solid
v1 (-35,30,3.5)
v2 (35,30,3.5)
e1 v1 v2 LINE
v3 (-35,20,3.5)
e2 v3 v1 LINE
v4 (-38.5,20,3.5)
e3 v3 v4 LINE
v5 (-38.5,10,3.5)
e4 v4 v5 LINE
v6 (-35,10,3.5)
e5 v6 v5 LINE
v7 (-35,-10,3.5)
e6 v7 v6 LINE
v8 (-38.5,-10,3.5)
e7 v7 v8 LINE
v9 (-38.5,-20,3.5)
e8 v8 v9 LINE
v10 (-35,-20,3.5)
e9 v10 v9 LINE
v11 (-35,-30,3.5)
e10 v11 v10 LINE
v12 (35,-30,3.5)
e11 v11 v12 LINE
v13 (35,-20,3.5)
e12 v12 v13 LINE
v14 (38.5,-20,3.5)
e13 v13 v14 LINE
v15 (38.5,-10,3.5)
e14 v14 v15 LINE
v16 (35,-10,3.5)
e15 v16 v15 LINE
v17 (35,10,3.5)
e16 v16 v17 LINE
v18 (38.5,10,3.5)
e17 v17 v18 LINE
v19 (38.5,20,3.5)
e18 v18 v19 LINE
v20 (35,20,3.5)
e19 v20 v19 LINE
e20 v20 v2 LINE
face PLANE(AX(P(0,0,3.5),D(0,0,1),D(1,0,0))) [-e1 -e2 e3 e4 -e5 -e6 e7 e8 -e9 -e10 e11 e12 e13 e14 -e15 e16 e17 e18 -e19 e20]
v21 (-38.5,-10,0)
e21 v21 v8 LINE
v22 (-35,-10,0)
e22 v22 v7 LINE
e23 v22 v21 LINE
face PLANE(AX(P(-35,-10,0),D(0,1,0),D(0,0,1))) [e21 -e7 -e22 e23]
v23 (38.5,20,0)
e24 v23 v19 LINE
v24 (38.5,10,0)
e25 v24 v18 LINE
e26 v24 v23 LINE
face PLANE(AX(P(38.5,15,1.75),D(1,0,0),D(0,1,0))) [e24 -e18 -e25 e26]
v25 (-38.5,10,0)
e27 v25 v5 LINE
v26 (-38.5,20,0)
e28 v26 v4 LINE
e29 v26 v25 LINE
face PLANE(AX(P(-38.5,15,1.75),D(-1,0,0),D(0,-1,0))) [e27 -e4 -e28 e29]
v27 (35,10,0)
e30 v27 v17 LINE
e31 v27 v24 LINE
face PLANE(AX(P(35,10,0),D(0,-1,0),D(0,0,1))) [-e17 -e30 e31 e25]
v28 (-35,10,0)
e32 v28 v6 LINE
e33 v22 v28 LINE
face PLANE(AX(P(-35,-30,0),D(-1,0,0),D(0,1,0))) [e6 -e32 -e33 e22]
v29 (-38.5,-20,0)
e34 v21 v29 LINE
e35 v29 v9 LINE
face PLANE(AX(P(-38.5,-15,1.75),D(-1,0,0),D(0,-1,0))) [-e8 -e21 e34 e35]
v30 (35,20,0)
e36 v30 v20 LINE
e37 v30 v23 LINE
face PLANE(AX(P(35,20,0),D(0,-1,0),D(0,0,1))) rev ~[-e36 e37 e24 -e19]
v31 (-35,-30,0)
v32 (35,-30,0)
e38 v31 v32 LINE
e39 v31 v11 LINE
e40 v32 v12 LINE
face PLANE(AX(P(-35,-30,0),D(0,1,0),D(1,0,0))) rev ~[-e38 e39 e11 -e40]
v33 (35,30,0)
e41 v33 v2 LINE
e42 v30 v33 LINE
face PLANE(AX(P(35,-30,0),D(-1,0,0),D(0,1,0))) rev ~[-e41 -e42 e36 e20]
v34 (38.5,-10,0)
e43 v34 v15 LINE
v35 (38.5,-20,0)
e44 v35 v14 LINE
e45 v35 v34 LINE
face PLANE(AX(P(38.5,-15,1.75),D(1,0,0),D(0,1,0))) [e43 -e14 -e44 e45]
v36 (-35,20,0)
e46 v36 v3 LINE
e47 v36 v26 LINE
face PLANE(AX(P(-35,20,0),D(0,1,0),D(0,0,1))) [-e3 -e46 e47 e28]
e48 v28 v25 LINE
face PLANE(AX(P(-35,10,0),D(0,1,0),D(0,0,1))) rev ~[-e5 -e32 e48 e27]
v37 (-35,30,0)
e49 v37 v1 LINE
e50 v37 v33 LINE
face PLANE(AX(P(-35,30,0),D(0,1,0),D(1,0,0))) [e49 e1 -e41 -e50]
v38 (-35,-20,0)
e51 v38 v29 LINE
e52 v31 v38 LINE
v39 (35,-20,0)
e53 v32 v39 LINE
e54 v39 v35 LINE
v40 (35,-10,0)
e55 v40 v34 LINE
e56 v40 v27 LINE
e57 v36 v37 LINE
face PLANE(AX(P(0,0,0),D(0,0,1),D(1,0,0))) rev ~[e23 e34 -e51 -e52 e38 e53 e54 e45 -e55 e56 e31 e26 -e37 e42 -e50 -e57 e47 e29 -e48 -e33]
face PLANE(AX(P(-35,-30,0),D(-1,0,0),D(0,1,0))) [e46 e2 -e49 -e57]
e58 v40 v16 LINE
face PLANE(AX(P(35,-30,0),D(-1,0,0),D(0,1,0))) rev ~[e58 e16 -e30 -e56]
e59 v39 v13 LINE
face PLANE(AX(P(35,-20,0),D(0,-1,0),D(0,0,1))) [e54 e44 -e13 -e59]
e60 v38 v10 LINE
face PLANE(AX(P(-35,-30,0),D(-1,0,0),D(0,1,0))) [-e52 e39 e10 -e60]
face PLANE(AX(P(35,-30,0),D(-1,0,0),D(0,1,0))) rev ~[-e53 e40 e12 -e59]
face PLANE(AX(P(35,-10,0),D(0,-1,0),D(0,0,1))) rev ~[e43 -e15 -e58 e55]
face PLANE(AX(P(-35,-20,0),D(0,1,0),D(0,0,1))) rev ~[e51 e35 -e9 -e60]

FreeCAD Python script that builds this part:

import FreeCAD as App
import Part
import Sketcher


def add_polygon(sketch, points):
    """Adds a closed chain of lines whose ends are joined by coincident constraints."""
    first, n = sketch.GeometryCount, len(points)
    for a, b in zip(points, points[1:] + points[:1]):
        sketch.addGeometry(Part.LineSegment(App.Vector(*a, 0), App.Vector(*b, 0)), False)
    for i in range(n):
        sketch.addConstraint(Sketcher.Constraint("Coincident", first + i, 2, first + (i + 1) % n, 1))

doc = App.newDocument("Part")
body = doc.addObject("PartDesign::Body", "Body")

# Sketch on XY plane
sketch1 = body.newObject("Sketcher::SketchObject", "Sketch")
sketch1.AttachmentSupport = (doc.getObject("XY_Plane"), [""])
sketch1.MapMode = "FlatFace"
add_polygon(sketch1, [(-35, 30), (-35, -30), (35, -30), (35, 30)])  # lines 0-3
sketch1.addConstraint(Sketcher.Constraint("Vertical", 0))
sketch1.addConstraint(Sketcher.Constraint("Horizontal", 1))
sketch1.addConstraint(Sketcher.Constraint("Vertical", 2))
sketch1.addConstraint(Sketcher.Constraint("Horizontal", 3))
sketch1.addConstraint(Sketcher.Constraint("Symmetric", 0, 2, 2, 2, -1, 1))
sketch1.addConstraint(Sketcher.Constraint("DistanceX", 1, 1, 1, 2, 70.0))
sketch1.addConstraint(Sketcher.Constraint("DistanceY", 0, 2, 0, 1, 60.0))
pad1 = body.newObject("PartDesign::Pad", "Pad")
pad1.Profile = sketch1
pad1.Length = 3.5

# Sketch on YZ plane
sketch2 = body.newObject("Sketcher::SketchObject", "Sketch001")
sketch2.AttachmentSupport = (doc.getObject("YZ_Plane"), [""])
sketch2.MapMode = "FlatFace"
sketch2.AttachmentOffset = App.Placement(App.Vector(0, 0, 35), App.Rotation())
add_polygon(sketch2, [(-20, 3.5), (-20, 0), (-10, 0), (-10, 3.5)])  # lines 0-3
add_polygon(sketch2, [(10, 3.5), (10, 0), (20, 0), (20, 3.5)])  # lines 4-7
sketch2.addConstraint(Sketcher.Constraint("Vertical", 0))
sketch2.addConstraint(Sketcher.Constraint("Horizontal", 1))
sketch2.addConstraint(Sketcher.Constraint("Vertical", 2))
sketch2.addConstraint(Sketcher.Constraint("Horizontal", 3))
sketch2.addConstraint(Sketcher.Constraint("Vertical", 4))
sketch2.addConstraint(Sketcher.Constraint("Horizontal", 5))
sketch2.addConstraint(Sketcher.Constraint("Vertical", 6))
sketch2.addConstraint(Sketcher.Constraint("Horizontal", 7))
sketch2.addConstraint(Sketcher.Constraint("Symmetric", 1, 2, 4, 2, -1, 1))
sketch2.addConstraint(Sketcher.Constraint("Symmetric", 0, 2, 5, 2, -2))
sketch2.addConstraint(Sketcher.Constraint("Horizontal", 3, 2, 6, 2))
sketch2.addConstraint(Sketcher.Constraint("DistanceX", 1, 1, 1, 2, 10.0))
sketch2.addConstraint(Sketcher.Constraint("DistanceY", 0, 2, 0, 1, 3.5))
sketch2.addConstraint(Sketcher.Constraint("DistanceX", 0, 2, -1, 1, 20.0))
pad2 = body.newObject("PartDesign::Pad", "Pad001")
pad2.Profile = sketch2
pad2.Length = 3.5

# Sketch on YZ plane
sketch3 = body.newObject("Sketcher::SketchObject", "Sketch002")
sketch3.AttachmentSupport = (doc.getObject("YZ_Plane"), [""])
sketch3.MapMode = "FlatFace"
sketch3.AttachmentOffset = App.Placement(App.Vector(0, 0, -35), App.Rotation())
add_polygon(sketch3, [(20, 3.5), (20, 0), (10, 0), (10, 3.5)])  # lines 0-3
add_polygon(sketch3, [(-10, 3.5), (-10, 0), (-20, 0), (-20, 3.5)])  # lines 4-7
sketch3.addConstraint(Sketcher.Constraint("Vertical", 0))
sketch3.addConstraint(Sketcher.Constraint("Horizontal", 1))
sketch3.addConstraint(Sketcher.Constraint("Vertical", 2))
sketch3.addConstraint(Sketcher.Constraint("Horizontal", 3))
sketch3.addConstraint(Sketcher.Constraint("Vertical", 4))
sketch3.addConstraint(Sketcher.Constraint("Horizontal", 5))
sketch3.addConstraint(Sketcher.Constraint("Vertical", 6))
sketch3.addConstraint(Sketcher.Constraint("Horizontal", 7))
sketch3.addConstraint(Sketcher.Constraint("Symmetric", 1, 2, 4, 2, -1, 1))
sketch3.addConstraint(Sketcher.Constraint("Symmetric", 0, 2, 5, 2, -2))
sketch3.addConstraint(Sketcher.Constraint("Horizontal", 3, 2, 6, 2))
sketch3.addConstraint(Sketcher.Constraint("DistanceX", 1, 2, 1, 1, 10.0))
sketch3.addConstraint(Sketcher.Constraint("DistanceY", 0, 2, 0, 1, 3.5))
sketch3.addConstraint(Sketcher.Constraint("DistanceX", -1, 1, 0, 2, 20.0))
pad3 = body.newObject("PartDesign::Pad", "Pad002")
pad3.Profile = sketch3
pad3.Length = 3.5
pad3.Reversed = True

doc.recompute()
